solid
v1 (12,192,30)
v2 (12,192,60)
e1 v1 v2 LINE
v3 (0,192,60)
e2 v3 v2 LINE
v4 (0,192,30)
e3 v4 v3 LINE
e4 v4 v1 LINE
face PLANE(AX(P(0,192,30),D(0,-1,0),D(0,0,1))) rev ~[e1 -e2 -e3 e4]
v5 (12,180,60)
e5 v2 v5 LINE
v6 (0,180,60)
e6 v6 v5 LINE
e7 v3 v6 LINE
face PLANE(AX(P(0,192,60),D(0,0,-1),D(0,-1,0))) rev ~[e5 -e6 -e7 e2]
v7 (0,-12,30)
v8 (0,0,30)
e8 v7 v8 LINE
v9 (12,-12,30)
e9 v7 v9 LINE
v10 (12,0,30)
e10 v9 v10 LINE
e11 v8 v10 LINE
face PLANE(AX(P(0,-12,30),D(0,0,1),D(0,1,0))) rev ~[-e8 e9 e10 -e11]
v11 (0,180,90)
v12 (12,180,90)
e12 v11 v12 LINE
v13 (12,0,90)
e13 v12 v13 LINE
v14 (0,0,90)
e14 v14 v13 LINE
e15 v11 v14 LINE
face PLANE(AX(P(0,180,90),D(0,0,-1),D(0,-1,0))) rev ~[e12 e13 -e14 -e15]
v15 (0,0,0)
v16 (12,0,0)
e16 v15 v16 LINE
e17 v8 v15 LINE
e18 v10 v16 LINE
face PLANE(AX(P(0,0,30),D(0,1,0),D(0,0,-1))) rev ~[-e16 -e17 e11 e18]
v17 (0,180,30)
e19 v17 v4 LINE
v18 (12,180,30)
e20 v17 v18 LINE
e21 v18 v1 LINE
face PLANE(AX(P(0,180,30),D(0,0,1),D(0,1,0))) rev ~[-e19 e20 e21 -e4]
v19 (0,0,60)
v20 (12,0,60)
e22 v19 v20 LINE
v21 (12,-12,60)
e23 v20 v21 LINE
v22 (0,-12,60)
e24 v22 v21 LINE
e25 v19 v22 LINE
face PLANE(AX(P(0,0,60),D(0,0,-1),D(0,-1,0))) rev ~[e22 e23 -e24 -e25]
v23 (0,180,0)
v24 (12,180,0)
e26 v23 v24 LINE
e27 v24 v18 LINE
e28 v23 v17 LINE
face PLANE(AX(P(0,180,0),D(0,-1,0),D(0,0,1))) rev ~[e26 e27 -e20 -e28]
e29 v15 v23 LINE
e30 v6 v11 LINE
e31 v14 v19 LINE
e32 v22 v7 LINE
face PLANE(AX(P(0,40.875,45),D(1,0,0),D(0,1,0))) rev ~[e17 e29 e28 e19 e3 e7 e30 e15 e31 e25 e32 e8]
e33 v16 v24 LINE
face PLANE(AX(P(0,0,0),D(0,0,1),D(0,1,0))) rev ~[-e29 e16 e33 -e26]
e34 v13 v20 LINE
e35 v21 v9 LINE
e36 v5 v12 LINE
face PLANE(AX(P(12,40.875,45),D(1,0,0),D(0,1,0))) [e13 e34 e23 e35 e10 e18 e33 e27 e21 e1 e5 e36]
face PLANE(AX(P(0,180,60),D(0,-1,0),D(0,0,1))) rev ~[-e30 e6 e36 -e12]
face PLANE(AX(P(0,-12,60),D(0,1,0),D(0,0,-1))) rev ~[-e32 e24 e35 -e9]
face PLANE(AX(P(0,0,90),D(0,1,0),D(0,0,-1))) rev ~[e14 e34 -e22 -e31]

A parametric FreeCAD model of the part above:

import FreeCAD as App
import Part
import Sketcher

V = App.Vector

doc = App.newDocument("Part")
body = doc.addObject("PartDesign::Body", "Body")

# Sketch on YZ plane
sketch1 = doc.addObject("Sketcher::SketchObject", "Sketch")
body.addObject(sketch1)
sketch1.AttachmentSupport = (doc.YZ_Plane, [""])
sketch1.MapMode = "FlatFace"
sketch1.addGeometry([
    Part.LineSegment(V(0, 30, 0), V(0, 0, 0)),  # 0
    Part.LineSegment(V(0, 0, 0), V(180, 0, 0)),  # 1
    Part.LineSegment(V(180, 0, 0), V(180, 30, 0)),  # 2
    Part.LineSegment(V(180, 30, 0), V(192, 30, 0)),  # 3
    Part.LineSegment(V(192, 30, 0), V(192, 60, 0)),  # 4
    Part.LineSegment(V(192, 60, 0), V(180, 60, 0)),  # 5
    Part.LineSegment(V(180, 60, 0), V(180, 90, 0)),  # 6
    Part.LineSegment(V(180, 90, 0), V(0, 90, 0)),  # 7
    Part.LineSegment(V(0, 90, 0), V(0, 60, 0)),  # 8
    Part.LineSegment(V(0, 60, 0), V(-12, 60, 0)),  # 9
    Part.LineSegment(V(-12, 60, 0), V(-12, 30, 0)),  # 10
    Part.LineSegment(V(-12, 30, 0), V(0, 30, 0)),  # 11
], False)
sketch1.addConstraint([
    Sketcher.Constraint("Coincident", 0, 2, 1, 1),
    Sketcher.Constraint("Coincident", 1, 2, 2, 1),
    Sketcher.Constraint("Coincident", 2, 2, 3, 1),
    Sketcher.Constraint("Coincident", 3, 2, 4, 1),
    Sketcher.Constraint("Coincident", 4, 2, 5, 1),
    Sketcher.Constraint("Coincident", 5, 2, 6, 1),
    Sketcher.Constraint("Coincident", 6, 2, 7, 1),
    Sketcher.Constraint("Coincident", 7, 2, 8, 1),
    Sketcher.Constraint("Coincident", 8, 2, 9, 1),
    Sketcher.Constraint("Coincident", 9, 2, 10, 1),
    Sketcher.Constraint("Coincident", 10, 2, 11, 1),
    Sketcher.Constraint("Coincident", 11, 2, 0, 1),
    Sketcher.Constraint("Vertical", 0),
    Sketcher.Constraint("Horizontal", 1),
    Sketcher.Constraint("Vertical", 2),
    Sketcher.Constraint("Horizontal", 3),
    Sketcher.Constraint("Vertical", 4),
    Sketcher.Constraint("Horizontal", 5),
    Sketcher.Constraint("Vertical", 6),
    Sketcher.Constraint("Horizontal", 7),
    Sketcher.Constraint("Vertical", 8),
    Sketcher.Constraint("Horizontal", 9),
    Sketcher.Constraint("Vertical", 10),
    Sketcher.Constraint("Horizontal", 11),
    Sketcher.Constraint("Coincident", 0, 2, -1, 1),
    Sketcher.Constraint("PointOnObject", 7, 2, -2),
    Sketcher.Constraint("Horizontal", 5, 2, 8, 2),
    Sketcher.Constraint("Horizontal", 3, 2, 10, 2),
    Sketcher.Constraint("Vertical", 2, 2, 5, 2),
    Sketcher.Constraint("Equal", 5, 9),
    Sketcher.Constraint("Equal", 2, 4),
    Sketcher.Constraint("Equal", 4, 6),
    Sketcher.Constraint("DistanceX", 1, 1, 1, 2, 180.0),
    Sketcher.Constraint("DistanceX", 3, 1, 3, 2, 12.0),
    Sketcher.Constraint("DistanceY", 0, 2, 0, 1, 30.0),
])
pad1 = doc.addObject("PartDesign::Pad", "Pad")
body.addObject(pad1)
pad1.Profile = sketch1
pad1.Length = 12

doc.recompute()
